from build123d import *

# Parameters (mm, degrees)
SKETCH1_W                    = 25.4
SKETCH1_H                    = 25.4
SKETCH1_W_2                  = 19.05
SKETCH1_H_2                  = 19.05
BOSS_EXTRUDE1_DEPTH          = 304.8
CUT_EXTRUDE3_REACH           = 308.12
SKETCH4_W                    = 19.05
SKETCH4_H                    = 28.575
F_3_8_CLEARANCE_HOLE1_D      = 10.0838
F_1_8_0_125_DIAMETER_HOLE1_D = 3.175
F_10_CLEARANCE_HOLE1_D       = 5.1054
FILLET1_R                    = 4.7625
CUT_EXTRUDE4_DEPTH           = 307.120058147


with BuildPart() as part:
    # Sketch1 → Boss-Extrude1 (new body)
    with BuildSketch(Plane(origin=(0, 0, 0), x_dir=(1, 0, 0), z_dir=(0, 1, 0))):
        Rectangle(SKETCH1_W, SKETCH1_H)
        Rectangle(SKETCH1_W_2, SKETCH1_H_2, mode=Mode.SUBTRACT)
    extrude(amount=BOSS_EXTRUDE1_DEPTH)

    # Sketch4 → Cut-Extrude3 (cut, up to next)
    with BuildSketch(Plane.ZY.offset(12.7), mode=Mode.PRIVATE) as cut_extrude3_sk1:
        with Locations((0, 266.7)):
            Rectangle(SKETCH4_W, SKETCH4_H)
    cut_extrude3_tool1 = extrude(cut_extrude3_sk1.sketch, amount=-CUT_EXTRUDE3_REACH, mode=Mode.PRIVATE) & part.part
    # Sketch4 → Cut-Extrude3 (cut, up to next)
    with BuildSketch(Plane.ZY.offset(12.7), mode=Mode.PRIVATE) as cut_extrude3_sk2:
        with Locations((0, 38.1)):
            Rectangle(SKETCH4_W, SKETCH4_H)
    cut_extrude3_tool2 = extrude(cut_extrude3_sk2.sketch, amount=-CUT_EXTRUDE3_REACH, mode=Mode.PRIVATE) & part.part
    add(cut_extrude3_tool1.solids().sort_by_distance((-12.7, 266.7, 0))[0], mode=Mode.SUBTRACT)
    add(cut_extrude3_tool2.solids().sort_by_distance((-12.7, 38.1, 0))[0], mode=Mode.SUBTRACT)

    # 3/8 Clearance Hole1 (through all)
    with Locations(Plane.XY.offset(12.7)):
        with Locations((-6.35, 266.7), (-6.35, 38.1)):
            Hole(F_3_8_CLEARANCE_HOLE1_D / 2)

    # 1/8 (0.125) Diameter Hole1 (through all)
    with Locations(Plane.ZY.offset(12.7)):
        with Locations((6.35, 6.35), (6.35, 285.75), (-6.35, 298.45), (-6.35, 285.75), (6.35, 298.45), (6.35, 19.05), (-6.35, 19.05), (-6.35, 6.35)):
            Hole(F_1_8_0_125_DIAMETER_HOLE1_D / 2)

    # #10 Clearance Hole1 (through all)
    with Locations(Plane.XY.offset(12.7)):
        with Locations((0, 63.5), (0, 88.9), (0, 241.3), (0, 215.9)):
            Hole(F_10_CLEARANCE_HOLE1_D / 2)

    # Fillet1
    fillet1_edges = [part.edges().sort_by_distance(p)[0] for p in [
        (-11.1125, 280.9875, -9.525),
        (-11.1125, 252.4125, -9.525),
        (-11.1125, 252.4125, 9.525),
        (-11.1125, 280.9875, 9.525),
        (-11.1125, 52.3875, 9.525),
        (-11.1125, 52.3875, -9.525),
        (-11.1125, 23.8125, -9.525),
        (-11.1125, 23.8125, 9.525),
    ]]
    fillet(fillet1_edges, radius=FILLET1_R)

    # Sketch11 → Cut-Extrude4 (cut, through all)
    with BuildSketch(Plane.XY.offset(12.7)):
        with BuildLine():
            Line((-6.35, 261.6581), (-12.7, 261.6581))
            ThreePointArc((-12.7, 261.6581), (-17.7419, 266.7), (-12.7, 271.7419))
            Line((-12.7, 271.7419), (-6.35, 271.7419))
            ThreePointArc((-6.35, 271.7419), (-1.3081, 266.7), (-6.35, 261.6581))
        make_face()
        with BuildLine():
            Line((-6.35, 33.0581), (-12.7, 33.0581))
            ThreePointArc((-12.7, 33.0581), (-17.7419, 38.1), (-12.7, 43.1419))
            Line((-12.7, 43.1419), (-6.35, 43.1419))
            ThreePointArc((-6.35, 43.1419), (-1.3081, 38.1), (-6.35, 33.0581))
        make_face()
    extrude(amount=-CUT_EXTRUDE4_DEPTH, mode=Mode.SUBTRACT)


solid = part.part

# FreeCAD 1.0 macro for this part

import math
import FreeCAD as App
import Part
import Sketcher
from FreeCAD import Vector
Q = App.Units.Quantity


def edges_at(feature, points):
    """Names of the edges that pass closest to the given points."""
    edges = feature.Shape.Edges
    near = lambda p: min(range(len(edges)), key=lambda i: edges[i].distToShape(Part.Vertex(*p))[0])
    return sorted({f"Edge{near(p) + 1}" for p in points})

doc = App.newDocument("Part")
body = doc.addObject("PartDesign::Body", "Body")

# Sketch on XZ plane
sketch1 = body.newObject("Sketcher::SketchObject", "Sketch")
sketch1.AttachmentSupport = (doc.getObject("XZ_Plane"), [""])
sketch1.MapMode = "FlatFace"
sketch1.addGeometry([
    Part.LineSegment(Vector(-13, -13, 0), Vector(-13, 13, 0)),  # 0
    Part.LineSegment(Vector(-13, 13, 0), Vector(13, 13, 0)),  # 1
    Part.LineSegment(Vector(13, 13, 0), Vector(13, -13, 0)),  # 2
    Part.LineSegment(Vector(13, -13, 0), Vector(-13, -13, 0)),  # 3
    Part.LineSegment(Vector(10, 10, 0), Vector(-10, 10, 0)),  # 4
    Part.LineSegment(Vector(-10, 10, 0), Vector(-10, -10, 0)),  # 5
    Part.LineSegment(Vector(-10, -10, 0), Vector(10, -10, 0)),  # 6
    Part.LineSegment(Vector(10, -10, 0), Vector(10, 10, 0)),  # 7
], False)
sketch1.addConstraint([
    Sketcher.Constraint("Coincident", 0, 2, 1, 1),
    Sketcher.Constraint("Coincident", 1, 2, 2, 1),
    Sketcher.Constraint("Coincident", 2, 2, 3, 1),
    Sketcher.Constraint("Coincident", 3, 2, 0, 1),
    Sketcher.Constraint("Coincident", 4, 2, 5, 1),
    Sketcher.Constraint("Coincident", 5, 2, 6, 1),
    Sketcher.Constraint("Coincident", 6, 2, 7, 1),
    Sketcher.Constraint("Coincident", 7, 2, 4, 1),
    Sketcher.Constraint("Vertical", 0),
    Sketcher.Constraint("Horizontal", 1),
    Sketcher.Constraint("Vertical", 2),
    Sketcher.Constraint("Horizontal", 3),
    Sketcher.Constraint("Horizontal", 4),
    Sketcher.Constraint("Vertical", 5),
    Sketcher.Constraint("Horizontal", 6),
    Sketcher.Constraint("Vertical", 7),
    Sketcher.Constraint("Symmetric", 0, 2, 2, 2, -1, 1),
    Sketcher.Constraint("Symmetric", 4, 2, 6, 2, -1, 1),
    Sketcher.Constraint("Equal", 3, 0),
    Sketcher.Constraint("Equal", 6, 5),
    Sketcher.Constraint("DistanceX", 1, 1, 1, 2, Q("1 in")),
    Sketcher.Constraint("DistanceX", 4, 2, 4, 1, Q("0.75 in")),
])
pad1 = body.newObject("PartDesign::Pad", "Pad")
pad1.Profile = sketch1
pad1.Length = Q("12 in")
pad1.Reversed = True

# Sketch on YZ plane
sketch2 = body.newObject("Sketcher::SketchObject", "Sketch001")
sketch2.AttachmentSupport = (doc.getObject("YZ_Plane"), [""])
sketch2.MapMode = "FlatFace"
sketch2.AttachmentOffset = App.Placement(Vector(0, 0, -0.5 * 25.4), App.Rotation())
sketch2.addGeometry([
    Part.LineSegment(Vector(281, -10, 0), Vector(252, -10, 0)),
    Part.LineSegment(Vector(252, -10, 0), Vector(252, 10, 0)),
    Part.LineSegment(Vector(252, 10, 0), Vector(281, 10, 0)),
    Part.LineSegment(Vector(281, 10, 0), Vector(281, -10, 0)),
], False)
sketch2.addConstraint([
    Sketcher.Constraint("Coincident", 0, 2, 1, 1),
    Sketcher.Constraint("Coincident", 1, 2, 2, 1),
    Sketcher.Constraint("Coincident", 2, 2, 3, 1),
    Sketcher.Constraint("Coincident", 3, 2, 0, 1),
    Sketcher.Constraint("Horizontal", 0),
    Sketcher.Constraint("Vertical", 1),
    Sketcher.Constraint("Horizontal", 2),
    Sketcher.Constraint("Vertical", 3),
    Sketcher.Constraint("DistanceY", 1, 1, 1, 2, Q("0.75 in")),
    Sketcher.Constraint("DistanceX", 0, 2, 0, 1, Q("1.125 in")),
    Sketcher.Constraint("DistanceX", -1, 1, 0, 2, Q("9.9375 in")),
    Sketcher.Constraint("DistanceY", 0, 2, -1, 1, Q("0.375 in")),
])
pocket1 = body.newObject("PartDesign::Pocket", "Pocket")
pocket1.Profile = sketch2
pocket1.Type = "UpToFirst"
pocket1.Reversed = True

# Sketch on YZ plane
sketch3 = body.newObject("Sketcher::SketchObject", "Sketch002")
sketch3.AttachmentSupport = (doc.getObject("YZ_Plane"), [""])
sketch3.MapMode = "FlatFace"
sketch3.AttachmentOffset = App.Placement(Vector(0, 0, -0.5 * 25.4), App.Rotation())
sketch3.addGeometry([
    Part.LineSegment(Vector(52, -10, 0), Vector(24, -10, 0)),
    Part.LineSegment(Vector(24, -10, 0), Vector(24, 10, 0)),
    Part.LineSegment(Vector(24, 10, 0), Vector(52, 10, 0)),
    Part.LineSegment(Vector(52, 10, 0), Vector(52, -10, 0)),
], False)
sketch3.addConstraint([
    Sketcher.Constraint("Coincident", 0, 2, 1, 1),
    Sketcher.Constraint("Coincident", 1, 2, 2, 1),
    Sketcher.Constraint("Coincident", 2, 2, 3, 1),
    Sketcher.Constraint("Coincident", 3, 2, 0, 1),
    Sketcher.Constraint("Horizontal", 0),
    Sketcher.Constraint("Vertical", 1),
    Sketcher.Constraint("Horizontal", 2),
    Sketcher.Constraint("Vertical", 3),
    Sketcher.Constraint("DistanceY", 1, 1, 1, 2, Q("0.75 in")),
    Sketcher.Constraint("DistanceX", 0, 2, 0, 1, Q("1.125 in")),
    Sketcher.Constraint("DistanceX", -1, 1, 0, 2, Q("0.9375 in")),
    Sketcher.Constraint("DistanceY", 0, 2, -1, 1, Q("0.375 in")),
])
pocket2 = body.newObject("PartDesign::Pocket", "Pocket001")
pocket2.Profile = sketch3
pocket2.Type = "UpToFirst"
pocket2.Reversed = True

# Sketch on XY plane
sketch4 = body.newObject("Sketcher::SketchObject", "Sketch003")
sketch4.AttachmentSupport = (doc.getObject("XY_Plane"), [""])
sketch4.MapMode = "FlatFace"
sketch4.AttachmentOffset = App.Placement(Vector(0, 0, 0.5 * 25.4), App.Rotation())
sketch4.addGeometry([
    Part.Circle(Vector(-6, 267, 0), Vector(0, 0, 1), 5),
    Part.Circle(Vector(-6, 38, 0), Vector(0, 0, 1), 5),
], False)
sketch4.addConstraint([
    Sketcher.Constraint("Equal", 0, 1),
    Sketcher.Constraint("Vertical", 0, 3, 1, 3),
    Sketcher.Constraint("Diameter", 0, Q("0.397 in")),
    Sketcher.Constraint("DistanceY", 1, 3, 0, 3, Q("9 in")),
    Sketcher.Constraint("DistanceY", -1, 1, 0, 3, Q("10.5 in")),
    Sketcher.Constraint("DistanceX", 0, 3, -1, 1, Q("0.25 in")),
])
doc.recompute()
hole = body.newObject("PartDesign::Hole", "Hole")
hole.Profile = sketch4
hole.ThreadType = "None"
hole.Diameter = Q("0.397 in")
hole.DepthType = "ThroughAll"

# Sketch on YZ plane
sketch5 = body.newObject("Sketcher::SketchObject", "Sketch004")
sketch5.AttachmentSupport = (doc.getObject("YZ_Plane"), [""])
sketch5.MapMode = "FlatFace"
sketch5.AttachmentOffset = App.Placement(Vector(0, 0, -0.5 * 25.4), App.Rotation())
sketch5.addGeometry([
    Part.Circle(Vector(6.3, 6.3, 0), Vector(0, 0, 1), 1.6),  # 0
    Part.Circle(Vector(285.8, 6.3, 0), Vector(0, 0, 1), 1.6),  # 1
    Part.Circle(Vector(298.4, -6.3, 0), Vector(0, 0, 1), 1.6),  # 2
    Part.Circle(Vector(285.8, -6.3, 0), Vector(0, 0, 1), 1.6),  # 3
    Part.Circle(Vector(298.4, 6.3, 0), Vector(0, 0, 1), 1.6),  # 4
    Part.Circle(Vector(19.1, 6.3, 0), Vector(0, 0, 1), 1.6),  # 5
    Part.Circle(Vector(19.1, -6.3, 0), Vector(0, 0, 1), 1.6),  # 6
    Part.Circle(Vector(6.3, -6.3, 0), Vector(0, 0, 1), 1.6),  # 7
], False)
sketch5.addConstraint([
    Sketcher.Constraint("Equal", 0, 1),
    Sketcher.Constraint("Equal", 1, 2),
    Sketcher.Constraint("Equal", 2, 3),
    Sketcher.Constraint("Equal", 3, 4),
    Sketcher.Constraint("Equal", 4, 5),
    Sketcher.Constraint("Equal", 5, 6),
    Sketcher.Constraint("Equal", 6, 7),
    Sketcher.Constraint("Symmetric", 1, 3, 3, 3, -1),
    Sketcher.Constraint("Symmetric", 2, 3, 4, 3, -1),
    Sketcher.Constraint("Symmetric", 5, 3, 6, 3, -1),
    Sketcher.Constraint("Symmetric", 0, 3, 7, 3, -1),
    Sketcher.Constraint("Horizontal", 0, 3, 1, 3),
    Sketcher.Constraint("Horizontal", 2, 3, 3, 3),
    Sketcher.Constraint("Horizontal", 4, 3, 5, 3),
    Sketcher.Constraint("Diameter", 0, Q("0.125 in")),
    Sketcher.Constraint("DistanceX", 0, 3, 1, 3, Q("11 in")),
    Sketcher.Constraint("DistanceX", 5, 3, 4, 3, Q("11 in")),
    Sketcher.Constraint("DistanceX", 1, 3, 2, 3, Q("0.5 in")),
    Sketcher.Constraint("DistanceY", 2, 3, 1, 3, Q("0.5 in")),
    Sketcher.Constraint("DistanceX", -1, 1, 0, 3, Q("0.25 in")),
])
doc.recompute()
hole2 = body.newObject("PartDesign::Hole", "Hole001")
hole2.Profile = sketch5
hole2.ThreadType = "None"
hole2.Diameter = Q("0.125 in")
hole2.DepthType = "ThroughAll"
hole2.Reversed = True

# Sketch on XY plane
sketch6 = body.newObject("Sketcher::SketchObject", "Sketch005")
sketch6.AttachmentSupport = (doc.getObject("XY_Plane"), [""])
sketch6.MapMode = "FlatFace"
sketch6.AttachmentOffset = App.Placement(Vector(0, 0, 0.5 * 25.4), App.Rotation())
sketch6.addGeometry([
    Part.Circle(Vector(0, 63.5, 0), Vector(0, 0, 1), 2.6),
    Part.Circle(Vector(0, 88.9, 0), Vector(0, 0, 1), 2.6),
    Part.Circle(Vector(0, 241.3, 0), Vector(0, 0, 1), 2.6),
    Part.Circle(Vector(0, 215.9, 0), Vector(0, 0, 1), 2.6),
], False)
sketch6.addConstraint([
    Sketcher.Constraint("Equal", 0, 1),
    Sketcher.Constraint("Equal", 1, 2),
    Sketcher.Constraint("Equal", 2, 3),
    Sketcher.Constraint("PointOnObject", 0, 3, -2),
    Sketcher.Constraint("PointOnObject", 1, 3, -2),
    Sketcher.Constraint("PointOnObject", 2, 3, -2),
    Sketcher.Constraint("PointOnObject", 3, 3, -2),
    Sketcher.Constraint("Diameter", 0, Q("0.201 in")),
    Sketcher.Constraint("DistanceY", 0, 3, 1, 3, Q("1 in")),
    Sketcher.Constraint("DistanceY", 1, 3, 2, 3, Q("6 in")),
    Sketcher.Constraint("DistanceY", 3, 3, 2, 3, Q("1 in")),
    Sketcher.Constraint("DistanceY", -1, 1, 0, 3, Q("2.5 in")),
])
doc.recompute()
hole3 = body.newObject("PartDesign::Hole", "Hole002")
hole3.Profile = sketch6
hole3.ThreadType = "None"
hole3.Diameter = Q("0.201 in")
hole3.DepthType = "ThroughAll"
doc.recompute()

fillet = body.newObject("PartDesign::Fillet", "Fillet")
fillet.Base = (hole3, edges_at(hole3, [
    (-11.113, 280.988, -9.525),
    (-11.113, 252.412, -9.525),
    (-11.113, 252.412, 9.525),
    (-11.113, 280.988, 9.525),
    (-11.113, 52.388, 9.525),
    (-11.113, 52.388, -9.525),
    (-11.113, 23.812, -9.525),
    (-11.113, 23.812, 9.525),
]))
fillet.Radius = Q("0.1875 in")

# Sketch on XY plane
sketch7 = body.newObject("Sketcher::SketchObject", "Sketch006")
sketch7.AttachmentSupport = (doc.getObject("XY_Plane"), [""])
sketch7.MapMode = "FlatFace"
sketch7.AttachmentOffset = App.Placement(Vector(0, 0, 0.5 * 25.4), App.Rotation())
sketch7.addGeometry([
    Part.LineSegment(Vector(-13, 262, 0), Vector(-6, 262, 0)),  # 0
    Part.ArcOfCircle(Part.Circle(Vector(-6, 267, 0), Vector(0, 0, 1), 5), math.radians(-90), math.radians(90)),  # 1
    Part.LineSegment(Vector(-6, 272, 0), Vector(-13, 272, 0)),  # 2
    Part.ArcOfCircle(Part.Circle(Vector(-13, 267, 0), Vector(0, 0, 1), 5), math.radians(90), math.radians(270)),  # 3
    Part.LineSegment(Vector(-13, 33, 0), Vector(-6, 33, 0)),  # 4
    Part.ArcOfCircle(Part.Circle(Vector(-6, 38, 0), Vector(0, 0, 1), 5), math.radians(-90), math.radians(90)),  # 5
    Part.LineSegment(Vector(-6, 43, 0), Vector(-13, 43, 0)),  # 6
    Part.ArcOfCircle(Part.Circle(Vector(-13, 38, 0), Vector(0, 0, 1), 5), math.radians(90), math.radians(270)),  # 7
], False)
sketch7.addConstraint([
    Sketcher.Constraint("Tangent", 0, 2, 1, 1),
    Sketcher.Constraint("Tangent", 1, 2, 2, 1),
    Sketcher.Constraint("Tangent", 2, 2, 3, 1),
    Sketcher.Constraint("Tangent", 3, 2, 0, 1),
    Sketcher.Constraint("Tangent", 4, 2, 5, 1),
    Sketcher.Constraint("Tangent", 5, 2, 6, 1),
    Sketcher.Constraint("Tangent", 6, 2, 7, 1),
    Sketcher.Constraint("Tangent", 7, 2, 4, 1),
    Sketcher.Constraint("Horizontal", 0),
    Sketcher.Constraint("Horizontal", 2),
    Sketcher.Constraint("Horizontal", 4),
    Sketcher.Constraint("Horizontal", 6),
    Sketcher.Constraint("Equal", 3, 5),
    Sketcher.Constraint("Vertical", 1, 3, 5, 3),
    Sketcher.Constraint("Vertical", 3, 3, 7, 3),
    Sketcher.Constraint("DistanceY", 5, 3, 1, 3, Q("9 in")),
    Sketcher.Constraint("DistanceX", 0, 1, 0, 2, Q("0.25 in")),
    Sketcher.Constraint("DistanceY", -1, 1, 1, 3, Q("10.5 in")),
    Sketcher.Constraint("DistanceX", 3, 3, -1, 1, Q("0.5 in")),
    Sketcher.Constraint("Radius", 1, Q("0.1985 in")),
])
pocket3 = body.newObject("PartDesign::Pocket", "Pocket002")
pocket3.Profile = sketch7
pocket3.Type = "ThroughAll"

doc.recompute()
